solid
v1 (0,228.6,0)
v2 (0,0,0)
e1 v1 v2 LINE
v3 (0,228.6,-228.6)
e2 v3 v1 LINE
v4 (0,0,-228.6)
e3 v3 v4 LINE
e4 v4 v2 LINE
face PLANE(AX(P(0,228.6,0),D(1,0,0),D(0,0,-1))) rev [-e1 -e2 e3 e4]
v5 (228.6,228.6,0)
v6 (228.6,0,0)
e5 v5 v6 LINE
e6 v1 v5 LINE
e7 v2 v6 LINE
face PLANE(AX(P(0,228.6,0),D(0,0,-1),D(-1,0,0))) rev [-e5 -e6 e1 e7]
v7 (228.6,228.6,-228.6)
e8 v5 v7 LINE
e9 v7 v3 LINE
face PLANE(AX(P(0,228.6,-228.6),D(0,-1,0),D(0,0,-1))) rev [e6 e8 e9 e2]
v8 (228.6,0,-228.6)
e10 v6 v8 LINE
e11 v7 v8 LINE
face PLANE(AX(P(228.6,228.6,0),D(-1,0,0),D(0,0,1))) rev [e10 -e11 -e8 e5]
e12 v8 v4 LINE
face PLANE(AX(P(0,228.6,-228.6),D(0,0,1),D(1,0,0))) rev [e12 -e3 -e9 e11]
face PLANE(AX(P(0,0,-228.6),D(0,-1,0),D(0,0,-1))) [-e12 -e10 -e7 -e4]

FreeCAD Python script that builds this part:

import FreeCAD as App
import Part
import Sketcher

V = App.Vector
Q = App.Units.Quantity

doc = App.newDocument("Part")
body = doc.addObject("PartDesign::Body", "Body")

# Sketch on XZ plane
sketch1 = body.newObject("Sketcher::SketchObject", "Sketch")
sketch1.AttachmentSupport = (doc.getObject("XZ_Plane"), [""])
sketch1.MapMode = "FlatFace"
sketch1.addGeometry([
    Part.LineSegment(V(0, -228.6, 0), V(0, 0, 0)),
    Part.LineSegment(V(0, 0, 0), V(228.6, 0, 0)),
    Part.LineSegment(V(228.6, 0, 0), V(228.6, -228.6, 0)),
    Part.LineSegment(V(228.6, -228.6, 0), V(0, -228.6, 0)),
], False)
sketch1.addConstraint([
    Sketcher.Constraint("Coincident", 0, 2, 1, 1),
    Sketcher.Constraint("Coincident", 1, 2, 2, 1),
    Sketcher.Constraint("Coincident", 2, 2, 3, 1),
    Sketcher.Constraint("Coincident", 3, 2, 0, 1),
    Sketcher.Constraint("Vertical", 0),
    Sketcher.Constraint("Horizontal", 1),
    Sketcher.Constraint("Vertical", 2),
    Sketcher.Constraint("Horizontal", 3),
    Sketcher.Constraint("Coincident", 0, 2, -1, 1),
    Sketcher.Constraint("Equal", 3, 0),
    Sketcher.Constraint("DistanceX", 1, 1, 1, 2, Q("9 in")),
])
pad1 = body.newObject("PartDesign::Pad", "Pad")
pad1.Profile = sketch1
pad1.Length = Q("9 in")
pad1.Reversed = True

doc.recompute()
